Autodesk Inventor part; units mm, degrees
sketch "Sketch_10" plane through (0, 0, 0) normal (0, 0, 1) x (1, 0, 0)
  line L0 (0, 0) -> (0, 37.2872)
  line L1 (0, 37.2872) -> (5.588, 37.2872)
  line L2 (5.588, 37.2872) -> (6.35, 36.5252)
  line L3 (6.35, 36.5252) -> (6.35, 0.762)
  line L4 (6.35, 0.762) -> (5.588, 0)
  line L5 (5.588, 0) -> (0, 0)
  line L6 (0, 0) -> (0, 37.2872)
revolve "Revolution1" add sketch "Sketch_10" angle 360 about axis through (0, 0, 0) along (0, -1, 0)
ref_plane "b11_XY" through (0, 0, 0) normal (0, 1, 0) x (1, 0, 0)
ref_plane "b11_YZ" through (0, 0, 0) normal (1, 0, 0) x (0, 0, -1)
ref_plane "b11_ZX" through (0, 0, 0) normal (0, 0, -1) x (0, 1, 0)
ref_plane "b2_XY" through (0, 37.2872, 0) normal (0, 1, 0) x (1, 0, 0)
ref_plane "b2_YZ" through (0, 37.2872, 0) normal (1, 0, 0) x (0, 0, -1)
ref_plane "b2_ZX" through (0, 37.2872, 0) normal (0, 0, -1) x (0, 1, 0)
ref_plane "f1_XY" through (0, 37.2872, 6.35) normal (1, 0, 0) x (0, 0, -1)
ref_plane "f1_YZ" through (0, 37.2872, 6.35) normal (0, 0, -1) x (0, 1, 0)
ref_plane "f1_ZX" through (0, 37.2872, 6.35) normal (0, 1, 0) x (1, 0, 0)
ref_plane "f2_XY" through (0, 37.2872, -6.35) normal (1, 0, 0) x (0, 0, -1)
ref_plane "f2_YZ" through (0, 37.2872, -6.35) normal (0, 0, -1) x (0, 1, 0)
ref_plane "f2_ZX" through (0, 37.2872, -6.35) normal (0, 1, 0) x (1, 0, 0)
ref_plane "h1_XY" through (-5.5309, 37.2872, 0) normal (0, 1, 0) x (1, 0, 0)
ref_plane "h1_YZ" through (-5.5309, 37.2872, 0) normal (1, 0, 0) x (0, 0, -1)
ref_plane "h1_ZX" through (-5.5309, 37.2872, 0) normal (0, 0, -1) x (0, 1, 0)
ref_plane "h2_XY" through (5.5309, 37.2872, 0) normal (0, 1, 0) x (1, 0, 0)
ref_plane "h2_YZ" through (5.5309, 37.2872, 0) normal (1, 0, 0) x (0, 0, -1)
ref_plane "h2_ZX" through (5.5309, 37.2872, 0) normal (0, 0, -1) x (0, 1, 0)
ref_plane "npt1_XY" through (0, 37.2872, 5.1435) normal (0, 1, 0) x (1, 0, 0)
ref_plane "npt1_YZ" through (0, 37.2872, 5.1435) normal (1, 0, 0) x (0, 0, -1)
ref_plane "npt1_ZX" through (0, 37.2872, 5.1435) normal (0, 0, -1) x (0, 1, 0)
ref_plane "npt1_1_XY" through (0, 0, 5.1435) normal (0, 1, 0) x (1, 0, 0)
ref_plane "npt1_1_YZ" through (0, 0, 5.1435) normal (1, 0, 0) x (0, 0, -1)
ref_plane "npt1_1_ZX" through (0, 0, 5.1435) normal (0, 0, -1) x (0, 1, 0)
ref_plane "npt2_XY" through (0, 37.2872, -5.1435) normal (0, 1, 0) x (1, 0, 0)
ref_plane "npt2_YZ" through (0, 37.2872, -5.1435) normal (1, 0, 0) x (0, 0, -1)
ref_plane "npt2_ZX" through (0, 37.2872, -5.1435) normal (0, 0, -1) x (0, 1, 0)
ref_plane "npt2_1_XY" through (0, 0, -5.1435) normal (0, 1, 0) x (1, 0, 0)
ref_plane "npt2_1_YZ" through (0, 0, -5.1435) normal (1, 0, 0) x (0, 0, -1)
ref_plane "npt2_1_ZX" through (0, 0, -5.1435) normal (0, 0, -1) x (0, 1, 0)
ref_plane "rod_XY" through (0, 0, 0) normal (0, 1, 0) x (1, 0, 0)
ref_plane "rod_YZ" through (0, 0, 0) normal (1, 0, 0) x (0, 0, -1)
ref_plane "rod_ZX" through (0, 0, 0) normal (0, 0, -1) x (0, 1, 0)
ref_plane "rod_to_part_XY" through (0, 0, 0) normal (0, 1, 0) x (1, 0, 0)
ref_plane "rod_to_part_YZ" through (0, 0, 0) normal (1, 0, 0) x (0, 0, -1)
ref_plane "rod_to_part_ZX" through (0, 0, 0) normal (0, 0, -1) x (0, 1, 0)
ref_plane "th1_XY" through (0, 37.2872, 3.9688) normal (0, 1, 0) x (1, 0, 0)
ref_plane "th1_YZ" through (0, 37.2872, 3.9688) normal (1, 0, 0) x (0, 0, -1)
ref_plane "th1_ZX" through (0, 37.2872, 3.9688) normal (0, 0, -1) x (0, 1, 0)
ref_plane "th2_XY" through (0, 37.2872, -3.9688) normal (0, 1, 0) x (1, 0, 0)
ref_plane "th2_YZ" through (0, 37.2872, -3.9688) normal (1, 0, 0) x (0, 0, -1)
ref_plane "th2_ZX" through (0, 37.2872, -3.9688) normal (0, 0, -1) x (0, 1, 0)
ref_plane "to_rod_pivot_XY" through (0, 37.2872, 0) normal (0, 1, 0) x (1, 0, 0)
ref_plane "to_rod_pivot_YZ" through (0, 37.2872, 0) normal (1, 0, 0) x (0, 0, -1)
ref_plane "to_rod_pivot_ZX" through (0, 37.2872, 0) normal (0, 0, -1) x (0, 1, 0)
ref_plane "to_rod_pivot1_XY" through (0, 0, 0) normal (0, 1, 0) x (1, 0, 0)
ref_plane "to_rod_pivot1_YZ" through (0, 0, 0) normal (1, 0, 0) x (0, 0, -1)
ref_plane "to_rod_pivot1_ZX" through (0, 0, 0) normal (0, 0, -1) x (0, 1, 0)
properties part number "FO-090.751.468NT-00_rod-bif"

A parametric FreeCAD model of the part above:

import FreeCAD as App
import Part
import Sketcher

V = App.Vector
Q = App.Units.Quantity

doc = App.newDocument("Part")
body = doc.addObject("PartDesign::Body", "Body")

sketch1 = body.newObject("Sketcher::SketchObject", "Sketch")
sketch1.AttachmentSupport = (doc.getObject("XY_Plane"), [""])
sketch1.MapMode = "FlatFace"
sketch1.addGeometry([
    Part.LineSegment(V(0, 37.2872, 0), V(0, 0, 0)),
    Part.LineSegment(V(0, 0, 0), V(5.588, 0, 0)),
    Part.LineSegment(V(5.588, 0, 0), V(6.35, 0.762, 0)),
    Part.LineSegment(V(6.35, 0.762, 0), V(6.35, 36.5252, 0)),
    Part.LineSegment(V(6.35, 36.5252, 0), V(5.588, 37.2872, 0)),
    Part.LineSegment(V(5.588, 37.2872, 0), V(0, 37.2872, 0)),
], False)
sketch1.addConstraint([
    Sketcher.Constraint("Coincident", 0, 2, 1, 1),
    Sketcher.Constraint("Coincident", 1, 2, 2, 1),
    Sketcher.Constraint("Coincident", 2, 2, 3, 1),
    Sketcher.Constraint("Coincident", 3, 2, 4, 1),
    Sketcher.Constraint("Coincident", 4, 2, 5, 1),
    Sketcher.Constraint("Coincident", 5, 2, 0, 1),
    Sketcher.Constraint("Vertical", 0),
    Sketcher.Constraint("Horizontal", 1),
    Sketcher.Constraint("Vertical", 3),
    Sketcher.Constraint("Horizontal", 5),
    Sketcher.Constraint("Coincident", 0, 2, -1, 1),
    Sketcher.Constraint("Perpendicular", 2, 4),
    Sketcher.Constraint("Vertical", 1, 2, 4, 2),
    Sketcher.Constraint("Equal", 2, 4),
    Sketcher.Constraint("DistanceX", 1, 1, 1, 2, Q("0.22 in")),
    Sketcher.Constraint("DistanceY", 0, 2, 0, 1, Q("1.468 in")),
    Sketcher.Constraint("DistanceY", 3, 1, 3, 2, Q("1.408 in")),
])
revolution = body.newObject("PartDesign::Revolution", "Revolution")
revolution.Profile = sketch1
revolution.ReferenceAxis = (sketch1, ["V_Axis"])
revolution.Angle = 360

doc.recompute()
